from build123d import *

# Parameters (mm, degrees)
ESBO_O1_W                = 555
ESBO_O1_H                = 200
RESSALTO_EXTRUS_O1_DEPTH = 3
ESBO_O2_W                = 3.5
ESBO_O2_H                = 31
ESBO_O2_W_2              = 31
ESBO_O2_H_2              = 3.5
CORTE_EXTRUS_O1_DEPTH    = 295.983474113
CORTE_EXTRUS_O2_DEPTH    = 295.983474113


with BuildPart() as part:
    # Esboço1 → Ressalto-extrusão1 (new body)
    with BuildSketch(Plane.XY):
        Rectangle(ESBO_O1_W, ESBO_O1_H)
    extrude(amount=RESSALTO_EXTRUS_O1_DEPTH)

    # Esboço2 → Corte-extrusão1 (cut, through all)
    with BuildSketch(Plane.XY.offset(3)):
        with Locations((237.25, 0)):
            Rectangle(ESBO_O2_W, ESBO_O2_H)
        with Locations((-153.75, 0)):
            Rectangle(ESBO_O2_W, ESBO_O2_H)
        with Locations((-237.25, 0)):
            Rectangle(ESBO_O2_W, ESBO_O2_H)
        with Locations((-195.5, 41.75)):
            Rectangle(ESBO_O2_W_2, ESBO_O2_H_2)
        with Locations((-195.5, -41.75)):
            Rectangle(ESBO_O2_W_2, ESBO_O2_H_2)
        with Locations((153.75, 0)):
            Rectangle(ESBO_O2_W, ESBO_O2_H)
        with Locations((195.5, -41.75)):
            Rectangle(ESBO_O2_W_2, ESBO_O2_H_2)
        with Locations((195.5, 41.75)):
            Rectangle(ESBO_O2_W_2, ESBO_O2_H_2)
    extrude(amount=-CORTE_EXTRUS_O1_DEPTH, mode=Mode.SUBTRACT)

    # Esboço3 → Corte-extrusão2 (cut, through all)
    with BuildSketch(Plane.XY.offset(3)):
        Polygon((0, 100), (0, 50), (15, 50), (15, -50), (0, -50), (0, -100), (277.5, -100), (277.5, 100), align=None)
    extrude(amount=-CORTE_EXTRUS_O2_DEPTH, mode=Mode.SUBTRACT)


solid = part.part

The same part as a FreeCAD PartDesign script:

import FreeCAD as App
import Part
import Sketcher


def add_polygon(sketch, points):
    """Adds a closed chain of lines whose ends are joined by coincident constraints."""
    first, n = sketch.GeometryCount, len(points)
    for a, b in zip(points, points[1:] + points[:1]):
        sketch.addGeometry(Part.LineSegment(App.Vector(*a, 0), App.Vector(*b, 0)), False)
    for i in range(n):
        sketch.addConstraint(Sketcher.Constraint("Coincident", first + i, 2, first + (i + 1) % n, 1))

doc = App.newDocument("Part")
body = doc.addObject("PartDesign::Body", "Body")

sketch1 = body.newObject("Sketcher::SketchObject", "Sketch")
sketch1.AttachmentSupport = (doc.getObject("XY_Plane"), [""])
sketch1.MapMode = "FlatFace"
add_polygon(sketch1, [(-278, 100), (-278, -100), (278, -100), (278, 100)])
sketch1.addConstraint(Sketcher.Constraint("Vertical", 0))
sketch1.addConstraint(Sketcher.Constraint("Horizontal", 1))
sketch1.addConstraint(Sketcher.Constraint("Vertical", 2))
sketch1.addConstraint(Sketcher.Constraint("Horizontal", 3))
sketch1.addConstraint(Sketcher.Constraint("Symmetric", 0, 2, 2, 2, -1, 1))
sketch1.addConstraint(Sketcher.Constraint("DistanceX", 1, 1, 1, 2, 555.0))
sketch1.addConstraint(Sketcher.Constraint("DistanceY", 0, 2, 0, 1, 200.0))
pad1 = body.newObject("PartDesign::Pad", "Pad")
pad1.Profile = sketch1
pad1.Length = 3

sketch2 = body.newObject("Sketcher::SketchObject", "Sketch001")
sketch2.AttachmentSupport = (doc.getObject("XY_Plane"), [""])
sketch2.MapMode = "FlatFace"
sketch2.AttachmentOffset = App.Placement(App.Vector(0, 0, 3), App.Rotation())
add_polygon(sketch2, [(235.5, 15.5), (235.5, -15.5), (239, -15.5), (239, 15.5)])
add_polygon(sketch2, [(-155.5, 15.5), (-155.5, -15.5), (-152, -15.5), (-152, 15.5)])
add_polygon(sketch2, [(-239, 15.5), (-239, -15.5), (-235.5, -15.5), (-235.5, 15.5)])
add_polygon(sketch2, [(-211, 43.5), (-211, 40), (-180, 40), (-180, 43.5)])
add_polygon(sketch2, [(-211, -40), (-211, -43.5), (-180, -43.5), (-180, -40)])
add_polygon(sketch2, [(152, 15.5), (152, -15.5), (155.5, -15.5), (155.5, 15.5)])
add_polygon(sketch2, [(180, -40), (180, -43.5), (211, -43.5), (211, -40)])
add_polygon(sketch2, [(180, 43.5), (180, 40), (211, 40), (211, 43.5)])
sketch2.addConstraint(Sketcher.Constraint("Vertical", 0))
sketch2.addConstraint(Sketcher.Constraint("Horizontal", 1))
sketch2.addConstraint(Sketcher.Constraint("Vertical", 2))
sketch2.addConstraint(Sketcher.Constraint("Horizontal", 3))
sketch2.addConstraint(Sketcher.Constraint("Vertical", 4))
sketch2.addConstraint(Sketcher.Constraint("Horizontal", 5))
sketch2.addConstraint(Sketcher.Constraint("Vertical", 6))
sketch2.addConstraint(Sketcher.Constraint("Horizontal", 7))
sketch2.addConstraint(Sketcher.Constraint("Vertical", 8))
sketch2.addConstraint(Sketcher.Constraint("Horizontal", 9))
sketch2.addConstraint(Sketcher.Constraint("Vertical", 10))
sketch2.addConstraint(Sketcher.Constraint("Horizontal", 11))
sketch2.addConstraint(Sketcher.Constraint("Vertical", 12))
sketch2.addConstraint(Sketcher.Constraint("Horizontal", 13))
sketch2.addConstraint(Sketcher.Constraint("Vertical", 14))
sketch2.addConstraint(Sketcher.Constraint("Horizontal", 15))
sketch2.addConstraint(Sketcher.Constraint("Vertical", 16))
sketch2.addConstraint(Sketcher.Constraint("Horizontal", 17))
sketch2.addConstraint(Sketcher.Constraint("Vertical", 18))
sketch2.addConstraint(Sketcher.Constraint("Horizontal", 19))
sketch2.addConstraint(Sketcher.Constraint("Vertical", 20))
sketch2.addConstraint(Sketcher.Constraint("Horizontal", 21))
sketch2.addConstraint(Sketcher.Constraint("Vertical", 22))
sketch2.addConstraint(Sketcher.Constraint("Horizontal", 23))
sketch2.addConstraint(Sketcher.Constraint("Vertical", 24))
sketch2.addConstraint(Sketcher.Constraint("Horizontal", 25))
sketch2.addConstraint(Sketcher.Constraint("Vertical", 26))
sketch2.addConstraint(Sketcher.Constraint("Horizontal", 27))
sketch2.addConstraint(Sketcher.Constraint("Vertical", 28))
sketch2.addConstraint(Sketcher.Constraint("Horizontal", 29))
sketch2.addConstraint(Sketcher.Constraint("Vertical", 30))
sketch2.addConstraint(Sketcher.Constraint("Horizontal", 31))
sketch2.addConstraint(Sketcher.Constraint("Symmetric", 2, 2, 8, 2, -1, 1))
sketch2.addConstraint(Sketcher.Constraint("Symmetric", 0, 2, 10, 2, -1, 1))
sketch2.addConstraint(Sketcher.Constraint("Symmetric", 6, 2, 20, 2, -1, 1))
sketch2.addConstraint(Sketcher.Constraint("Symmetric", 4, 2, 22, 2, -1, 1))
sketch2.addConstraint(Sketcher.Constraint("Symmetric", 14, 2, 24, 2, -1, 1))
sketch2.addConstraint(Sketcher.Constraint("Symmetric", 12, 2, 26, 2, -1, 1))
sketch2.addConstraint(Sketcher.Constraint("Symmetric", 18, 2, 28, 2, -1, 1))
sketch2.addConstraint(Sketcher.Constraint("Symmetric", 16, 2, 30, 2, -1, 1))
sketch2.addConstraint(Sketcher.Constraint("Symmetric", 17, 2, 24, 2, -2))
sketch2.addConstraint(Sketcher.Constraint("Symmetric", 19, 2, 26, 2, -2))
sketch2.addConstraint(Sketcher.Constraint("Horizontal", 1, 2, 4, 2))
sketch2.addConstraint(Sketcher.Constraint("Horizontal", 3, 2, 6, 2))
sketch2.addConstraint(Sketcher.Constraint("Horizontal", 5, 2, 8, 2))
sketch2.addConstraint(Sketcher.Constraint("Equal", 3, 5))
sketch2.addConstraint(Sketcher.Constraint("Equal", 31, 0))
sketch2.addConstraint(Sketcher.Constraint("Equal", 23, 12))
sketch2.addConstraint(Sketcher.Constraint("DistanceX", 13, 1, 13, 2, 31.0))
sketch2.addConstraint(Sketcher.Constraint("DistanceX", 1, 1, 1, 2, 3.5))
sketch2.addConstraint(Sketcher.Constraint("DistanceX", -1, 1, 1, 2, 239.0))
sketch2.addConstraint(Sketcher.Constraint("DistanceX", 5, 2, -1, 1, 152.0))
sketch2.addConstraint(Sketcher.Constraint("DistanceX", 12, 2, -1, 1, 211.0))
sketch2.addConstraint(Sketcher.Constraint("DistanceY", -1, 1, 12, 2, 40.0))
pocket1 = body.newObject("PartDesign::Pocket", "Pocket")
pocket1.Profile = sketch2
pocket1.Type = "ThroughAll"

sketch3 = body.newObject("Sketcher::SketchObject", "Sketch002")
sketch3.AttachmentSupport = (doc.getObject("XY_Plane"), [""])
sketch3.MapMode = "FlatFace"
sketch3.AttachmentOffset = App.Placement(App.Vector(0, 0, 3), App.Rotation())
add_polygon(sketch3, [(0, 100), (0, 50), (15, 50), (15, -50), (0, -50), (0, -100), (278, -100), (278, 100)])
sketch3.addConstraint(Sketcher.Constraint("Vertical", 0))
sketch3.addConstraint(Sketcher.Constraint("Horizontal", 1))
sketch3.addConstraint(Sketcher.Constraint("Vertical", 2))
sketch3.addConstraint(Sketcher.Constraint("Horizontal", 3))
sketch3.addConstraint(Sketcher.Constraint("Vertical", 4))
sketch3.addConstraint(Sketcher.Constraint("Horizontal", 5))
sketch3.addConstraint(Sketcher.Constraint("Vertical", 6))
sketch3.addConstraint(Sketcher.Constraint("Horizontal", 7))
sketch3.addConstraint(Sketcher.Constraint("Symmetric", 0, 2, 3, 2, -1, 1))
sketch3.addConstraint(Sketcher.Constraint("Symmetric", 4, 2, 7, 2, -1))
sketch3.addConstraint(Sketcher.Constraint("DistanceX", 1, 1, 1, 2, 15.0))
sketch3.addConstraint(Sketcher.Constraint("DistanceY", 0, 2, 0, 1, 50.0))
sketch3.addConstraint(Sketcher.Constraint("DistanceY", 2, 2, 2, 1, 100.0))
sketch3.addConstraint(Sketcher.Constraint("DistanceX", 5, 1, 5, 2, 277.5))
pocket2 = body.newObject("PartDesign::Pocket", "Pocket001")
pocket2.Profile = sketch3
pocket2.Type = "ThroughAll"

doc.recompute()
